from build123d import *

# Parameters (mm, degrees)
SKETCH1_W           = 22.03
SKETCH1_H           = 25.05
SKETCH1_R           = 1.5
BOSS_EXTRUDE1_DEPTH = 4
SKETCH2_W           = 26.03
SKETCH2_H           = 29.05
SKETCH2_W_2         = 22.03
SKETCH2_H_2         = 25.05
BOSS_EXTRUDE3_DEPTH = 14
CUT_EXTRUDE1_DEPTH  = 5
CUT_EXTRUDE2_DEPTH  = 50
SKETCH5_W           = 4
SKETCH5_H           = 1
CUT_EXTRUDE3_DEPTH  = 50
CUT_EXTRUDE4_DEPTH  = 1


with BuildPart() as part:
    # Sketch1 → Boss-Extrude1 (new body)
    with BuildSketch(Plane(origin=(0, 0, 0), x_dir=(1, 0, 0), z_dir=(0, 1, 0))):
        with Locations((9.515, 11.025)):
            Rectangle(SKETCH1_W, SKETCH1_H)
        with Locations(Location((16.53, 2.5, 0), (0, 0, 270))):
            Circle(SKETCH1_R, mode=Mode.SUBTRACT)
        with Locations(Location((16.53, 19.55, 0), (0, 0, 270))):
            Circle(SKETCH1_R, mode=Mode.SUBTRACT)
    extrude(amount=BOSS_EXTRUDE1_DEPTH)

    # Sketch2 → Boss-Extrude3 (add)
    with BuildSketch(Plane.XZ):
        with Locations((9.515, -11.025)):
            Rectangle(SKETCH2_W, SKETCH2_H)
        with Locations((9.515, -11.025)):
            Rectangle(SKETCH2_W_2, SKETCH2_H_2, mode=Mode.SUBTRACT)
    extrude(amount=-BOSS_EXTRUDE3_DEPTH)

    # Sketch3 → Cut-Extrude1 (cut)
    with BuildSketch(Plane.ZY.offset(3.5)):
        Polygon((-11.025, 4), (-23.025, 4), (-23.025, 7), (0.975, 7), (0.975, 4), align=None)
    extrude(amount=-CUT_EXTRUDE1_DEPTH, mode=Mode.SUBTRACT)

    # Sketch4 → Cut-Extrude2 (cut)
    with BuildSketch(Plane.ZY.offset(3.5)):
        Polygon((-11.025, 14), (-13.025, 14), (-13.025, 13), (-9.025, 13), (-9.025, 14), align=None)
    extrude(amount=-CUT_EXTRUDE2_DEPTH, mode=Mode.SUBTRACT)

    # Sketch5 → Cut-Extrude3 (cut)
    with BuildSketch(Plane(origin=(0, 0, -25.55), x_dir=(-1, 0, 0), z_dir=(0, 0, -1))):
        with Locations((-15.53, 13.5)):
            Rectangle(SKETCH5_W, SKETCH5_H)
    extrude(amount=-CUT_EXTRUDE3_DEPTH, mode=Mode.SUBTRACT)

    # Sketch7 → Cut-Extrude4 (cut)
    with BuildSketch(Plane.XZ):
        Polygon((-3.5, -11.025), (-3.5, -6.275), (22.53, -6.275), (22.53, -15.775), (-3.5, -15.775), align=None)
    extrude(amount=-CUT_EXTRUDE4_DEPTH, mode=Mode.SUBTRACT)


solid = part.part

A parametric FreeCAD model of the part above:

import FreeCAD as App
import Part
import Sketcher
from FreeCAD import Vector
Q = App.Units.Quantity


def add_polygon(sketch, points):
    """Adds a closed chain of lines whose ends are joined by coincident constraints."""
    first, n = sketch.GeometryCount, len(points)
    for a, b in zip(points, points[1:] + points[:1]):
        sketch.addGeometry(Part.LineSegment(App.Vector(*a, 0), App.Vector(*b, 0)), False)
    for i in range(n):
        sketch.addConstraint(Sketcher.Constraint("Coincident", first + i, 2, first + (i + 1) % n, 1))

doc = App.newDocument("Part")
params = doc.addObject("Spreadsheet::Sheet", "Params")
for row, (alias, value) in enumerate([
    ("sketch1_diameter", "3 mm"),
    ("sketch1_width", "22.03 mm"),
    ("sketch1_height", "25.05 mm"),
    ("pad1_length", "4 mm"),
    ("sketch2_width", "26.03 mm"),
    ("sketch2_height", "29.05 mm"),
    ("pad2_length", "14 mm"),
    ("sketch3_width", "3 mm"),
    ("sketch3_height", "24 mm"),
    ("pocket1_length", "5 mm"),
    ("sketch4_width", "1 mm"),
    ("sketch4_height", "4 mm"),
    ("pocket2_length", "50 mm"),
    ("sketch5_width", "4 mm"),
    ("sketch5_height", "1 mm"),
    ("pocket3_length", "50 mm"),
    ("sketch6_height", "9.5 mm"),
    ("sketch6_width", "26.03 mm"),
    ("pocket4_length", "1 mm"),
], start=1):
    params.set(f"A{row}", alias)
    params.set(f"B{row}", "=" + value)
    params.setAlias(f"B{row}", alias)

body = doc.addObject("PartDesign::Body", "Body")

sketch1 = body.newObject("Sketcher::SketchObject", "Sketch")
sketch1.AttachmentSupport = (doc.getObject("XZ_Plane"), [""])
sketch1.MapMode = "FlatFace"
add_polygon(sketch1, [(-1.5, -23.6), (-1.5, 1.5), (20.5, 1.5), (20.5, -23.6)])
sketch1.addGeometry(Part.Circle(Vector(16.5, -2.5, 0), Vector(0, 0, 1), 1.5), False)
sketch1.addGeometry(Part.Circle(Vector(16.5, -19.6, 0), Vector(0, 0, 1), 1.5), False)
sketch1.addConstraint([
    Sketcher.Constraint("Vertical", 0),
    Sketcher.Constraint("Horizontal", 1),
    Sketcher.Constraint("Vertical", 2),
    Sketcher.Constraint("Horizontal", 3),
    Sketcher.Constraint("Equal", 4, 5),
    Sketcher.Constraint("Vertical", 4, 3, 5, 3),
    Sketcher.Constraint("Diameter", 4, Q("3 mm")),
    Sketcher.Constraint("DistanceY", 4, 3, 0, 2, Q("4 mm")),
    Sketcher.Constraint("DistanceX", 4, 3, 1, 2, Q("4 mm")),
    Sketcher.Constraint("DistanceY", 2, 2, 5, 3, Q("4 mm")),
    Sketcher.Constraint("DistanceX", 1, 1, 1, 2, Q("22.03 mm")),
    Sketcher.Constraint("DistanceY", 0, 1, 0, 2, Q("25.05 mm")),
    Sketcher.Constraint("DistanceY", 4, 3, -1, 1, Q("2.5 mm")),
    Sketcher.Constraint("DistanceX", 0, 2, -1, 1, Q("1.5 mm")),
])
sketch1.setExpression("Constraints[10]", "Params.sketch1_diameter")
sketch1.setExpression("Constraints[14]", "Params.sketch1_width")
sketch1.setExpression("Constraints[15]", "Params.sketch1_height")
pad1 = body.newObject("PartDesign::Pad", "Pad")
pad1.Profile = sketch1
pad1.setExpression("Length", "Params.pad1_length")
pad1.Reversed = True

sketch2 = body.newObject("Sketcher::SketchObject", "Sketch001")
sketch2.AttachmentSupport = (doc.getObject("XZ_Plane"), [""])
sketch2.MapMode = "FlatFace"
add_polygon(sketch2, [(-4, 4), (-4, -26), (23, -26), (23, 4)])
add_polygon(sketch2, [(21, -24), (-2, -24), (-2, 2), (21, 2)])
sketch2.addConstraint([
    Sketcher.Constraint("Vertical", 0),
    Sketcher.Constraint("Horizontal", 1),
    Sketcher.Constraint("Vertical", 2),
    Sketcher.Constraint("Horizontal", 3),
    Sketcher.Constraint("Horizontal", 4),
    Sketcher.Constraint("Vertical", 5),
    Sketcher.Constraint("Horizontal", 6),
    Sketcher.Constraint("Vertical", 7),
    Sketcher.Constraint("DistanceX", 0, 2, 4, 2, Q("2 mm")),
    Sketcher.Constraint("DistanceY", 0, 2, 4, 2, Q("2 mm")),
    Sketcher.Constraint("DistanceY", 5, 2, 3, 2, Q("2 mm")),
    Sketcher.Constraint("DistanceX", 6, 2, 2, 2, Q("2 mm")),
    Sketcher.Constraint("DistanceX", 1, 1, 1, 2, Q("26.03 mm")),
    Sketcher.Constraint("DistanceY", 0, 2, 0, 1, Q("29.05 mm")),
    Sketcher.Constraint("DistanceX", 0, 2, -1, 1, Q("3.5 mm")),
    Sketcher.Constraint("DistanceY", -1, 1, 2, 2, Q("3.5 mm")),
])
sketch2.setExpression("Constraints[20]", "Params.sketch2_width")
sketch2.setExpression("Constraints[21]", "Params.sketch2_height")
pad2 = body.newObject("PartDesign::Pad", "Pad001")
pad2.Profile = sketch2
pad2.setExpression("Length", "Params.pad2_length")
pad2.Reversed = True

sketch3 = body.newObject("Sketcher::SketchObject", "Sketch002")
sketch3.AttachmentSupport = (doc.getObject("YZ_Plane"), [""])
sketch3.MapMode = "FlatFace"
sketch3.AttachmentOffset = App.Placement(Vector(0, 0, -3.5), App.Rotation())
add_polygon(sketch3, [(4, -23), (4, 1), (7, 1), (7, -23)])
sketch3.addConstraint([
    Sketcher.Constraint("Vertical", 0),
    Sketcher.Constraint("Horizontal", 1),
    Sketcher.Constraint("Vertical", 2),
    Sketcher.Constraint("Horizontal", 3),
    Sketcher.Constraint("DistanceX", 1, 1, 1, 2, Q("3 mm")),
    Sketcher.Constraint("DistanceY", 0, 1, 0, 2, Q("24 mm")),
    Sketcher.Constraint("DistanceX", -1, 1, 0, 2, Q("4 mm")),
    Sketcher.Constraint("DistanceY", -1, 1, 0, 2, Q("0.975 mm")),
])
sketch3.setExpression("Constraints[8]", "Params.sketch3_width")
sketch3.setExpression("Constraints[9]", "Params.sketch3_height")
pocket1 = body.newObject("PartDesign::Pocket", "Pocket")
pocket1.Profile = sketch3
pocket1.setExpression("Length", "Params.pocket1_length")
pocket1.Reversed = True

sketch4 = body.newObject("Sketcher::SketchObject", "Sketch003")
sketch4.AttachmentSupport = (doc.getObject("YZ_Plane"), [""])
sketch4.MapMode = "FlatFace"
sketch4.AttachmentOffset = App.Placement(Vector(0, 0, -3.5), App.Rotation())
add_polygon(sketch4, [(14, -13), (13, -13), (13, -9), (14, -9)])
sketch4.addConstraint([
    Sketcher.Constraint("Horizontal", 0),
    Sketcher.Constraint("Vertical", 1),
    Sketcher.Constraint("Horizontal", 2),
    Sketcher.Constraint("Vertical", 3),
    Sketcher.Constraint("DistanceX", 0, 2, 0, 1, Q("1 mm")),
    Sketcher.Constraint("DistanceY", 1, 1, 1, 2, Q("4 mm")),
    Sketcher.Constraint("DistanceX", -1, 1, 0, 2, Q("13 mm")),
    Sketcher.Constraint("DistanceY", 0, 2, -1, 1, Q("13.025 mm")),
])
sketch4.setExpression("Constraints[8]", "Params.sketch4_width")
sketch4.setExpression("Constraints[9]", "Params.sketch4_height")
pocket2 = body.newObject("PartDesign::Pocket", "Pocket001")
pocket2.Profile = sketch4
pocket2.setExpression("Length", "Params.pocket2_length")
pocket2.Reversed = True

sketch5 = body.newObject("Sketcher::SketchObject", "Sketch004")
sketch5.AttachmentSupport = (doc.getObject("XY_Plane"), [""])
sketch5.MapMode = "FlatFace"
sketch5.AttachmentOffset = App.Placement(Vector(0, 0, -25.55), App.Rotation())
add_polygon(sketch5, [(17.5, 14), (17.5, 13), (13.5, 13), (13.5, 14)])
sketch5.addConstraint([
    Sketcher.Constraint("Vertical", 0),
    Sketcher.Constraint("Horizontal", 1),
    Sketcher.Constraint("Vertical", 2),
    Sketcher.Constraint("Horizontal", 3),
    Sketcher.Constraint("DistanceX", 1, 2, 1, 1, Q("4 mm")),
    Sketcher.Constraint("DistanceY", 0, 2, 0, 1, Q("1 mm")),
    Sketcher.Constraint("DistanceY", -1, 1, 0, 2, Q("13 mm")),
    Sketcher.Constraint("DistanceX", -1, 1, 0, 2, Q("17.53 mm")),
])
sketch5.setExpression("Constraints[8]", "Params.sketch5_width")
sketch5.setExpression("Constraints[9]", "Params.sketch5_height")
pocket3 = body.newObject("PartDesign::Pocket", "Pocket002")
pocket3.Profile = sketch5
pocket3.setExpression("Length", "Params.pocket3_length")
pocket3.Reversed = True

sketch6 = body.newObject("Sketcher::SketchObject", "Sketch005")
sketch6.AttachmentSupport = (doc.getObject("XZ_Plane"), [""])
sketch6.MapMode = "FlatFace"
add_polygon(sketch6, [(-4, -6), (-4, -16), (23, -16), (23, -6)])
sketch6.addConstraint([
    Sketcher.Constraint("Vertical", 0),
    Sketcher.Constraint("Horizontal", 1),
    Sketcher.Constraint("Vertical", 2),
    Sketcher.Constraint("Horizontal", 3),
    Sketcher.Constraint("DistanceY", 0, 2, 0, 1, Q("9.5 mm")),
    Sketcher.Constraint("DistanceX", 1, 1, 1, 2, Q("26.03 mm")),
    Sketcher.Constraint("DistanceX", 0, 2, -1, 1, Q("3.5 mm")),
    Sketcher.Constraint("DistanceY", 0, 2, -1, 1, Q("15.775 mm")),
])
sketch6.setExpression("Constraints[8]", "Params.sketch6_height")
sketch6.setExpression("Constraints[9]", "Params.sketch6_width")
pocket4 = body.newObject("PartDesign::Pocket", "Pocket003")
pocket4.Profile = sketch6
pocket4.setExpression("Length", "Params.pocket4_length")

doc.recompute()
